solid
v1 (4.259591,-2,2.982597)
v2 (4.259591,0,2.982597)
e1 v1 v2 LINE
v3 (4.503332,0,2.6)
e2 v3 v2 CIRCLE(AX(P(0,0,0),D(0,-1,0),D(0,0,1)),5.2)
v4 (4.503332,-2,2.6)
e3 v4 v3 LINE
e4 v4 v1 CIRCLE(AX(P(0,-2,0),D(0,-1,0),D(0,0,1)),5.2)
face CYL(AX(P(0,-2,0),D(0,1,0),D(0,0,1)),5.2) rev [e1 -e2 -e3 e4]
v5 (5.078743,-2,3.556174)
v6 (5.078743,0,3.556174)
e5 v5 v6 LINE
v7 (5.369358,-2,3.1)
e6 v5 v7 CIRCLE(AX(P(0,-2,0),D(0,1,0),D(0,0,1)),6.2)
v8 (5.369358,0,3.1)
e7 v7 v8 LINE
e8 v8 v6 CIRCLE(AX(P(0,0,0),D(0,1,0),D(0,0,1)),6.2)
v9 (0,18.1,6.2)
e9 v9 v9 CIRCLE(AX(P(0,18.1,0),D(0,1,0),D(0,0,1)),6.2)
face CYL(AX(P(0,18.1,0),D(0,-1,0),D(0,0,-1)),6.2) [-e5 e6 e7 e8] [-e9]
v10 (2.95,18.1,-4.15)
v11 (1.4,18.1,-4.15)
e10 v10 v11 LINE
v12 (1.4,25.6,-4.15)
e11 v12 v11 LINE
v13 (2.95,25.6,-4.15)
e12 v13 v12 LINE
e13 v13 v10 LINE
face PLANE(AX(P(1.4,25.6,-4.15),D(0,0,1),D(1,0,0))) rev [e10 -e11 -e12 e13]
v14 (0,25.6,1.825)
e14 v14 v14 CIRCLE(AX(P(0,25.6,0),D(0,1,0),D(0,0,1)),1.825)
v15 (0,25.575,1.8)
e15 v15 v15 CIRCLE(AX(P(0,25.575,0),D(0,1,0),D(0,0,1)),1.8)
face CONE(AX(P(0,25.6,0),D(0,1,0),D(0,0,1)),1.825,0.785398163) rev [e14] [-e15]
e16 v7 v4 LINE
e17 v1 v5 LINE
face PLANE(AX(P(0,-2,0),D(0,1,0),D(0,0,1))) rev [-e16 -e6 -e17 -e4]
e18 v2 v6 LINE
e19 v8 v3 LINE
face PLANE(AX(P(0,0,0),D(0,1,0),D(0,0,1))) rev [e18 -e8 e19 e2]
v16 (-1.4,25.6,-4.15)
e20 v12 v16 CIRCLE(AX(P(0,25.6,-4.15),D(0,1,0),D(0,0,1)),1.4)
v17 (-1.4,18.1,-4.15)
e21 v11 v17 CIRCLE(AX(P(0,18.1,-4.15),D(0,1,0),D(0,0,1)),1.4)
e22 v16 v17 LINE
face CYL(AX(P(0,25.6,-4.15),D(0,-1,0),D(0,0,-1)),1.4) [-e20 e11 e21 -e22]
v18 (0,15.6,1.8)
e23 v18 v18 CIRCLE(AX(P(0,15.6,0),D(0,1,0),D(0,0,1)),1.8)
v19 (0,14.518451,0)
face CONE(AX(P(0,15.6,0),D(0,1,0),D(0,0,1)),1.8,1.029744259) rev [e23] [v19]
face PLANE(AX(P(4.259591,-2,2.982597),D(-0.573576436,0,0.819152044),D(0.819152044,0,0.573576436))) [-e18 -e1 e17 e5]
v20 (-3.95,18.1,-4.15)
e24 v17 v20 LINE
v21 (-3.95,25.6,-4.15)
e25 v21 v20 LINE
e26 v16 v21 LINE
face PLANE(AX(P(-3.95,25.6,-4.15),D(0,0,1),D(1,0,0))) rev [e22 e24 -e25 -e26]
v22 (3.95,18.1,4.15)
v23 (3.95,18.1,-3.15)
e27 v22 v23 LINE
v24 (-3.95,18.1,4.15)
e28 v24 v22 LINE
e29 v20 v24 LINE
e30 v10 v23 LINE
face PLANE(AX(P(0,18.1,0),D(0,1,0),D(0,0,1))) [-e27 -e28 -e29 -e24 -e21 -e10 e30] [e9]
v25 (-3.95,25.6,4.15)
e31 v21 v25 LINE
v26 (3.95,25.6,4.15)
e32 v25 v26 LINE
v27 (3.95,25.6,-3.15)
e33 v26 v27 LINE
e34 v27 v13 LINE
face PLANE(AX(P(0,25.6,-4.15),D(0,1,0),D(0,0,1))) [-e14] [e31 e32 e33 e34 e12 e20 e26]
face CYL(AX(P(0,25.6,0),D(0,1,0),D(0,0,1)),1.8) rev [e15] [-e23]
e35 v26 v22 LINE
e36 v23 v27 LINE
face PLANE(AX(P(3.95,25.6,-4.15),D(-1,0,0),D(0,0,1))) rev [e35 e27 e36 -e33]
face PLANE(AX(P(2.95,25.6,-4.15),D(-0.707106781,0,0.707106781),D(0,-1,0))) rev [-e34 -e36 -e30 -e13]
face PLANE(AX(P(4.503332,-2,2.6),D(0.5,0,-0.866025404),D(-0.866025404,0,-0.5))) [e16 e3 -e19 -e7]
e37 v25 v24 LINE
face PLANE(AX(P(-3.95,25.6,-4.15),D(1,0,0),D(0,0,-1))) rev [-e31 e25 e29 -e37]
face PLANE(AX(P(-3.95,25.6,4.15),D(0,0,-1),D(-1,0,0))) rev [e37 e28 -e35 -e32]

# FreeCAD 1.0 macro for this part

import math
import FreeCAD as App
import Part
import Sketcher

V = App.Vector
Q = App.Units.Quantity


def edges_at(feature, points):
    """Names of the edges that pass closest to the given points."""
    edges = feature.Shape.Edges
    near = lambda p: min(range(len(edges)), key=lambda i: edges[i].distToShape(Part.Vertex(*p))[0])
    return sorted({f"Edge{near(p) + 1}" for p in points})

doc = App.newDocument("Part")
body = doc.addObject("PartDesign::Body", "Body")

sketch1 = body.newObject("Sketcher::SketchObject", "Sketch")
sketch1.AttachmentSupport = (doc.getObject("XZ_Plane"), [""])
sketch1.MapMode = "FlatFace"
sketch1.addGeometry(Part.Circle(V(0, 0, 0), V(0, 0, 1), 6), False)
sketch1.addConstraint([
    Sketcher.Constraint("Coincident", 0, 3, -1, 1),
    Sketcher.Constraint("Diameter", 0, Q("12.4 mm")),
])
pad1 = body.newObject("PartDesign::Pad", "Pad")
pad1.Profile = sketch1
pad1.Length = 18.1
pad1.Reversed = True

sketch2 = body.newObject("Sketcher::SketchObject", "Sketch001")
sketch2.AttachmentSupport = (doc.getObject("XZ_Plane"), [""])
sketch2.MapMode = "FlatFace"
sketch2.addGeometry([
    Part.LineSegment(V(5.37, 3.1, 0), V(4.5, 2.6, 0)),
    Part.ArcOfCircle(Part.Circle(V(0, 0, 0), V(0, 0, 1), 5.2), math.radians(30), math.radians(35)),
    Part.LineSegment(V(4.26, 2.98, 0), V(5.08, 3.56, 0)),
    Part.ArcOfCircle(Part.Circle(V(0, 0, 0), V(0, 0, 1), 6.2), math.radians(30), math.radians(35)),
], False)
sketch2.addConstraint([
    Sketcher.Constraint("Coincident", 0, 2, 1, 1),
    Sketcher.Constraint("Coincident", 1, 2, 2, 1),
    Sketcher.Constraint("Coincident", 2, 2, 3, 2),
    Sketcher.Constraint("Coincident", 3, 1, 0, 1),
    Sketcher.Constraint("Coincident", 1, 3, -1, 1),
    Sketcher.Constraint("Coincident", 3, 3, -1, 1),
    Sketcher.Constraint("Radius", 1, Q("5.2 mm")),
    Sketcher.Constraint("Radius", 3, Q("6.2 mm")),
    Sketcher.Constraint("Angle", 0, Q("-150 deg")),
    Sketcher.Constraint("Angle", 2, Q("35 deg")),
    Sketcher.Constraint("DistanceY", -1, 1, 0, 2, Q("2.6 mm")),
    Sketcher.Constraint("DistanceX", -1, 1, 1, 2, Q("4.259591 mm")),
])
pad2 = body.newObject("PartDesign::Pad", "Pad001")
pad2.Profile = sketch2
pad2.Length = 2

sketch3 = body.newObject("Sketcher::SketchObject", "Sketch002")
sketch3.AttachmentSupport = (doc.getObject("XZ_Plane"), [""])
sketch3.MapMode = "FlatFace"
sketch3.AttachmentOffset = App.Placement(V(0, 0, -18.1), App.Rotation())
sketch3.addGeometry([
    Part.LineSegment(V(4, -4.2, 0), V(1.4, -4.2, 0)),
    Part.ArcOfCircle(Part.Circle(V(0, -4.2, 0), V(0, 0, 1), 1.4), math.radians(180), math.radians(360)),
    Part.LineSegment(V(-1.4, -4.2, 0), V(-4, -4.2, 0)),
    Part.LineSegment(V(-4, -4.2, 0), V(-4, 4.2, 0)),
    Part.LineSegment(V(-4, 4.2, 0), V(4, 4.2, 0)),
    Part.LineSegment(V(4, 4.2, 0), V(4, -4.2, 0)),
], False)
sketch3.addConstraint([
    Sketcher.Constraint("Coincident", 0, 2, 1, 2),
    Sketcher.Constraint("Coincident", 1, 1, 2, 1),
    Sketcher.Constraint("Coincident", 2, 2, 3, 1),
    Sketcher.Constraint("Coincident", 3, 2, 4, 1),
    Sketcher.Constraint("Coincident", 4, 2, 5, 1),
    Sketcher.Constraint("Coincident", 5, 2, 0, 1),
    Sketcher.Constraint("Horizontal", 0),
    Sketcher.Constraint("Horizontal", 2),
    Sketcher.Constraint("Vertical", 3),
    Sketcher.Constraint("Horizontal", 4),
    Sketcher.Constraint("Vertical", 5),
    Sketcher.Constraint("Symmetric", 2, 2, 4, 2, -1, 1),
    Sketcher.Constraint("Symmetric", 0, 2, 1, 1, -2),
    Sketcher.Constraint("Horizontal", 1, 3, 0, 2),
    Sketcher.Constraint("Radius", 1, Q("1.4 mm")),
    Sketcher.Constraint("DistanceX", 4, 1, 4, 2, Q("7.9 mm")),
    Sketcher.Constraint("DistanceY", 3, 1, 3, 2, Q("8.3 mm")),
])
pad3 = body.newObject("PartDesign::Pad", "Pad002")
pad3.Profile = sketch3
pad3.Length = 7.5
pad3.Reversed = True
doc.recompute()

chamfer = body.newObject("PartDesign::Chamfer", "Chamfer")
chamfer.Base = (pad3, edges_at(pad3, [(3.95, 21.85, -4.15)]))
chamfer.Size = 1

sketch4 = body.newObject("Sketcher::SketchObject", "Sketch003")
sketch4.AttachmentSupport = (doc.getObject("XZ_Plane"), [""])
sketch4.MapMode = "FlatFace"
sketch4.AttachmentOffset = App.Placement(V(0, 0, -25.6), App.Rotation())
sketch4.addGeometry(Part.Circle(V(0, 0, 0), V(0, 0, 1), 1.8), False)
sketch4.addConstraint([
    Sketcher.Constraint("Coincident", 0, 3, -1, 1),
    Sketcher.Constraint("Diameter", 0, Q("3.6 mm")),
])
doc.recompute()
hole = body.newObject("PartDesign::Hole", "Hole")
hole.Profile = sketch4
hole.ThreadType = "None"
hole.Diameter = 3.6
hole.DepthType = "Dimension"
hole.Depth = 10
hole.DrillPoint = "Angled"
hole.DrillPointAngle = 118
hole.HoleCutType = "Countersink"
hole.HoleCutDiameter = 3.65
hole.HoleCutCountersinkAngle = 90
hole.Reversed = True

doc.recompute()
